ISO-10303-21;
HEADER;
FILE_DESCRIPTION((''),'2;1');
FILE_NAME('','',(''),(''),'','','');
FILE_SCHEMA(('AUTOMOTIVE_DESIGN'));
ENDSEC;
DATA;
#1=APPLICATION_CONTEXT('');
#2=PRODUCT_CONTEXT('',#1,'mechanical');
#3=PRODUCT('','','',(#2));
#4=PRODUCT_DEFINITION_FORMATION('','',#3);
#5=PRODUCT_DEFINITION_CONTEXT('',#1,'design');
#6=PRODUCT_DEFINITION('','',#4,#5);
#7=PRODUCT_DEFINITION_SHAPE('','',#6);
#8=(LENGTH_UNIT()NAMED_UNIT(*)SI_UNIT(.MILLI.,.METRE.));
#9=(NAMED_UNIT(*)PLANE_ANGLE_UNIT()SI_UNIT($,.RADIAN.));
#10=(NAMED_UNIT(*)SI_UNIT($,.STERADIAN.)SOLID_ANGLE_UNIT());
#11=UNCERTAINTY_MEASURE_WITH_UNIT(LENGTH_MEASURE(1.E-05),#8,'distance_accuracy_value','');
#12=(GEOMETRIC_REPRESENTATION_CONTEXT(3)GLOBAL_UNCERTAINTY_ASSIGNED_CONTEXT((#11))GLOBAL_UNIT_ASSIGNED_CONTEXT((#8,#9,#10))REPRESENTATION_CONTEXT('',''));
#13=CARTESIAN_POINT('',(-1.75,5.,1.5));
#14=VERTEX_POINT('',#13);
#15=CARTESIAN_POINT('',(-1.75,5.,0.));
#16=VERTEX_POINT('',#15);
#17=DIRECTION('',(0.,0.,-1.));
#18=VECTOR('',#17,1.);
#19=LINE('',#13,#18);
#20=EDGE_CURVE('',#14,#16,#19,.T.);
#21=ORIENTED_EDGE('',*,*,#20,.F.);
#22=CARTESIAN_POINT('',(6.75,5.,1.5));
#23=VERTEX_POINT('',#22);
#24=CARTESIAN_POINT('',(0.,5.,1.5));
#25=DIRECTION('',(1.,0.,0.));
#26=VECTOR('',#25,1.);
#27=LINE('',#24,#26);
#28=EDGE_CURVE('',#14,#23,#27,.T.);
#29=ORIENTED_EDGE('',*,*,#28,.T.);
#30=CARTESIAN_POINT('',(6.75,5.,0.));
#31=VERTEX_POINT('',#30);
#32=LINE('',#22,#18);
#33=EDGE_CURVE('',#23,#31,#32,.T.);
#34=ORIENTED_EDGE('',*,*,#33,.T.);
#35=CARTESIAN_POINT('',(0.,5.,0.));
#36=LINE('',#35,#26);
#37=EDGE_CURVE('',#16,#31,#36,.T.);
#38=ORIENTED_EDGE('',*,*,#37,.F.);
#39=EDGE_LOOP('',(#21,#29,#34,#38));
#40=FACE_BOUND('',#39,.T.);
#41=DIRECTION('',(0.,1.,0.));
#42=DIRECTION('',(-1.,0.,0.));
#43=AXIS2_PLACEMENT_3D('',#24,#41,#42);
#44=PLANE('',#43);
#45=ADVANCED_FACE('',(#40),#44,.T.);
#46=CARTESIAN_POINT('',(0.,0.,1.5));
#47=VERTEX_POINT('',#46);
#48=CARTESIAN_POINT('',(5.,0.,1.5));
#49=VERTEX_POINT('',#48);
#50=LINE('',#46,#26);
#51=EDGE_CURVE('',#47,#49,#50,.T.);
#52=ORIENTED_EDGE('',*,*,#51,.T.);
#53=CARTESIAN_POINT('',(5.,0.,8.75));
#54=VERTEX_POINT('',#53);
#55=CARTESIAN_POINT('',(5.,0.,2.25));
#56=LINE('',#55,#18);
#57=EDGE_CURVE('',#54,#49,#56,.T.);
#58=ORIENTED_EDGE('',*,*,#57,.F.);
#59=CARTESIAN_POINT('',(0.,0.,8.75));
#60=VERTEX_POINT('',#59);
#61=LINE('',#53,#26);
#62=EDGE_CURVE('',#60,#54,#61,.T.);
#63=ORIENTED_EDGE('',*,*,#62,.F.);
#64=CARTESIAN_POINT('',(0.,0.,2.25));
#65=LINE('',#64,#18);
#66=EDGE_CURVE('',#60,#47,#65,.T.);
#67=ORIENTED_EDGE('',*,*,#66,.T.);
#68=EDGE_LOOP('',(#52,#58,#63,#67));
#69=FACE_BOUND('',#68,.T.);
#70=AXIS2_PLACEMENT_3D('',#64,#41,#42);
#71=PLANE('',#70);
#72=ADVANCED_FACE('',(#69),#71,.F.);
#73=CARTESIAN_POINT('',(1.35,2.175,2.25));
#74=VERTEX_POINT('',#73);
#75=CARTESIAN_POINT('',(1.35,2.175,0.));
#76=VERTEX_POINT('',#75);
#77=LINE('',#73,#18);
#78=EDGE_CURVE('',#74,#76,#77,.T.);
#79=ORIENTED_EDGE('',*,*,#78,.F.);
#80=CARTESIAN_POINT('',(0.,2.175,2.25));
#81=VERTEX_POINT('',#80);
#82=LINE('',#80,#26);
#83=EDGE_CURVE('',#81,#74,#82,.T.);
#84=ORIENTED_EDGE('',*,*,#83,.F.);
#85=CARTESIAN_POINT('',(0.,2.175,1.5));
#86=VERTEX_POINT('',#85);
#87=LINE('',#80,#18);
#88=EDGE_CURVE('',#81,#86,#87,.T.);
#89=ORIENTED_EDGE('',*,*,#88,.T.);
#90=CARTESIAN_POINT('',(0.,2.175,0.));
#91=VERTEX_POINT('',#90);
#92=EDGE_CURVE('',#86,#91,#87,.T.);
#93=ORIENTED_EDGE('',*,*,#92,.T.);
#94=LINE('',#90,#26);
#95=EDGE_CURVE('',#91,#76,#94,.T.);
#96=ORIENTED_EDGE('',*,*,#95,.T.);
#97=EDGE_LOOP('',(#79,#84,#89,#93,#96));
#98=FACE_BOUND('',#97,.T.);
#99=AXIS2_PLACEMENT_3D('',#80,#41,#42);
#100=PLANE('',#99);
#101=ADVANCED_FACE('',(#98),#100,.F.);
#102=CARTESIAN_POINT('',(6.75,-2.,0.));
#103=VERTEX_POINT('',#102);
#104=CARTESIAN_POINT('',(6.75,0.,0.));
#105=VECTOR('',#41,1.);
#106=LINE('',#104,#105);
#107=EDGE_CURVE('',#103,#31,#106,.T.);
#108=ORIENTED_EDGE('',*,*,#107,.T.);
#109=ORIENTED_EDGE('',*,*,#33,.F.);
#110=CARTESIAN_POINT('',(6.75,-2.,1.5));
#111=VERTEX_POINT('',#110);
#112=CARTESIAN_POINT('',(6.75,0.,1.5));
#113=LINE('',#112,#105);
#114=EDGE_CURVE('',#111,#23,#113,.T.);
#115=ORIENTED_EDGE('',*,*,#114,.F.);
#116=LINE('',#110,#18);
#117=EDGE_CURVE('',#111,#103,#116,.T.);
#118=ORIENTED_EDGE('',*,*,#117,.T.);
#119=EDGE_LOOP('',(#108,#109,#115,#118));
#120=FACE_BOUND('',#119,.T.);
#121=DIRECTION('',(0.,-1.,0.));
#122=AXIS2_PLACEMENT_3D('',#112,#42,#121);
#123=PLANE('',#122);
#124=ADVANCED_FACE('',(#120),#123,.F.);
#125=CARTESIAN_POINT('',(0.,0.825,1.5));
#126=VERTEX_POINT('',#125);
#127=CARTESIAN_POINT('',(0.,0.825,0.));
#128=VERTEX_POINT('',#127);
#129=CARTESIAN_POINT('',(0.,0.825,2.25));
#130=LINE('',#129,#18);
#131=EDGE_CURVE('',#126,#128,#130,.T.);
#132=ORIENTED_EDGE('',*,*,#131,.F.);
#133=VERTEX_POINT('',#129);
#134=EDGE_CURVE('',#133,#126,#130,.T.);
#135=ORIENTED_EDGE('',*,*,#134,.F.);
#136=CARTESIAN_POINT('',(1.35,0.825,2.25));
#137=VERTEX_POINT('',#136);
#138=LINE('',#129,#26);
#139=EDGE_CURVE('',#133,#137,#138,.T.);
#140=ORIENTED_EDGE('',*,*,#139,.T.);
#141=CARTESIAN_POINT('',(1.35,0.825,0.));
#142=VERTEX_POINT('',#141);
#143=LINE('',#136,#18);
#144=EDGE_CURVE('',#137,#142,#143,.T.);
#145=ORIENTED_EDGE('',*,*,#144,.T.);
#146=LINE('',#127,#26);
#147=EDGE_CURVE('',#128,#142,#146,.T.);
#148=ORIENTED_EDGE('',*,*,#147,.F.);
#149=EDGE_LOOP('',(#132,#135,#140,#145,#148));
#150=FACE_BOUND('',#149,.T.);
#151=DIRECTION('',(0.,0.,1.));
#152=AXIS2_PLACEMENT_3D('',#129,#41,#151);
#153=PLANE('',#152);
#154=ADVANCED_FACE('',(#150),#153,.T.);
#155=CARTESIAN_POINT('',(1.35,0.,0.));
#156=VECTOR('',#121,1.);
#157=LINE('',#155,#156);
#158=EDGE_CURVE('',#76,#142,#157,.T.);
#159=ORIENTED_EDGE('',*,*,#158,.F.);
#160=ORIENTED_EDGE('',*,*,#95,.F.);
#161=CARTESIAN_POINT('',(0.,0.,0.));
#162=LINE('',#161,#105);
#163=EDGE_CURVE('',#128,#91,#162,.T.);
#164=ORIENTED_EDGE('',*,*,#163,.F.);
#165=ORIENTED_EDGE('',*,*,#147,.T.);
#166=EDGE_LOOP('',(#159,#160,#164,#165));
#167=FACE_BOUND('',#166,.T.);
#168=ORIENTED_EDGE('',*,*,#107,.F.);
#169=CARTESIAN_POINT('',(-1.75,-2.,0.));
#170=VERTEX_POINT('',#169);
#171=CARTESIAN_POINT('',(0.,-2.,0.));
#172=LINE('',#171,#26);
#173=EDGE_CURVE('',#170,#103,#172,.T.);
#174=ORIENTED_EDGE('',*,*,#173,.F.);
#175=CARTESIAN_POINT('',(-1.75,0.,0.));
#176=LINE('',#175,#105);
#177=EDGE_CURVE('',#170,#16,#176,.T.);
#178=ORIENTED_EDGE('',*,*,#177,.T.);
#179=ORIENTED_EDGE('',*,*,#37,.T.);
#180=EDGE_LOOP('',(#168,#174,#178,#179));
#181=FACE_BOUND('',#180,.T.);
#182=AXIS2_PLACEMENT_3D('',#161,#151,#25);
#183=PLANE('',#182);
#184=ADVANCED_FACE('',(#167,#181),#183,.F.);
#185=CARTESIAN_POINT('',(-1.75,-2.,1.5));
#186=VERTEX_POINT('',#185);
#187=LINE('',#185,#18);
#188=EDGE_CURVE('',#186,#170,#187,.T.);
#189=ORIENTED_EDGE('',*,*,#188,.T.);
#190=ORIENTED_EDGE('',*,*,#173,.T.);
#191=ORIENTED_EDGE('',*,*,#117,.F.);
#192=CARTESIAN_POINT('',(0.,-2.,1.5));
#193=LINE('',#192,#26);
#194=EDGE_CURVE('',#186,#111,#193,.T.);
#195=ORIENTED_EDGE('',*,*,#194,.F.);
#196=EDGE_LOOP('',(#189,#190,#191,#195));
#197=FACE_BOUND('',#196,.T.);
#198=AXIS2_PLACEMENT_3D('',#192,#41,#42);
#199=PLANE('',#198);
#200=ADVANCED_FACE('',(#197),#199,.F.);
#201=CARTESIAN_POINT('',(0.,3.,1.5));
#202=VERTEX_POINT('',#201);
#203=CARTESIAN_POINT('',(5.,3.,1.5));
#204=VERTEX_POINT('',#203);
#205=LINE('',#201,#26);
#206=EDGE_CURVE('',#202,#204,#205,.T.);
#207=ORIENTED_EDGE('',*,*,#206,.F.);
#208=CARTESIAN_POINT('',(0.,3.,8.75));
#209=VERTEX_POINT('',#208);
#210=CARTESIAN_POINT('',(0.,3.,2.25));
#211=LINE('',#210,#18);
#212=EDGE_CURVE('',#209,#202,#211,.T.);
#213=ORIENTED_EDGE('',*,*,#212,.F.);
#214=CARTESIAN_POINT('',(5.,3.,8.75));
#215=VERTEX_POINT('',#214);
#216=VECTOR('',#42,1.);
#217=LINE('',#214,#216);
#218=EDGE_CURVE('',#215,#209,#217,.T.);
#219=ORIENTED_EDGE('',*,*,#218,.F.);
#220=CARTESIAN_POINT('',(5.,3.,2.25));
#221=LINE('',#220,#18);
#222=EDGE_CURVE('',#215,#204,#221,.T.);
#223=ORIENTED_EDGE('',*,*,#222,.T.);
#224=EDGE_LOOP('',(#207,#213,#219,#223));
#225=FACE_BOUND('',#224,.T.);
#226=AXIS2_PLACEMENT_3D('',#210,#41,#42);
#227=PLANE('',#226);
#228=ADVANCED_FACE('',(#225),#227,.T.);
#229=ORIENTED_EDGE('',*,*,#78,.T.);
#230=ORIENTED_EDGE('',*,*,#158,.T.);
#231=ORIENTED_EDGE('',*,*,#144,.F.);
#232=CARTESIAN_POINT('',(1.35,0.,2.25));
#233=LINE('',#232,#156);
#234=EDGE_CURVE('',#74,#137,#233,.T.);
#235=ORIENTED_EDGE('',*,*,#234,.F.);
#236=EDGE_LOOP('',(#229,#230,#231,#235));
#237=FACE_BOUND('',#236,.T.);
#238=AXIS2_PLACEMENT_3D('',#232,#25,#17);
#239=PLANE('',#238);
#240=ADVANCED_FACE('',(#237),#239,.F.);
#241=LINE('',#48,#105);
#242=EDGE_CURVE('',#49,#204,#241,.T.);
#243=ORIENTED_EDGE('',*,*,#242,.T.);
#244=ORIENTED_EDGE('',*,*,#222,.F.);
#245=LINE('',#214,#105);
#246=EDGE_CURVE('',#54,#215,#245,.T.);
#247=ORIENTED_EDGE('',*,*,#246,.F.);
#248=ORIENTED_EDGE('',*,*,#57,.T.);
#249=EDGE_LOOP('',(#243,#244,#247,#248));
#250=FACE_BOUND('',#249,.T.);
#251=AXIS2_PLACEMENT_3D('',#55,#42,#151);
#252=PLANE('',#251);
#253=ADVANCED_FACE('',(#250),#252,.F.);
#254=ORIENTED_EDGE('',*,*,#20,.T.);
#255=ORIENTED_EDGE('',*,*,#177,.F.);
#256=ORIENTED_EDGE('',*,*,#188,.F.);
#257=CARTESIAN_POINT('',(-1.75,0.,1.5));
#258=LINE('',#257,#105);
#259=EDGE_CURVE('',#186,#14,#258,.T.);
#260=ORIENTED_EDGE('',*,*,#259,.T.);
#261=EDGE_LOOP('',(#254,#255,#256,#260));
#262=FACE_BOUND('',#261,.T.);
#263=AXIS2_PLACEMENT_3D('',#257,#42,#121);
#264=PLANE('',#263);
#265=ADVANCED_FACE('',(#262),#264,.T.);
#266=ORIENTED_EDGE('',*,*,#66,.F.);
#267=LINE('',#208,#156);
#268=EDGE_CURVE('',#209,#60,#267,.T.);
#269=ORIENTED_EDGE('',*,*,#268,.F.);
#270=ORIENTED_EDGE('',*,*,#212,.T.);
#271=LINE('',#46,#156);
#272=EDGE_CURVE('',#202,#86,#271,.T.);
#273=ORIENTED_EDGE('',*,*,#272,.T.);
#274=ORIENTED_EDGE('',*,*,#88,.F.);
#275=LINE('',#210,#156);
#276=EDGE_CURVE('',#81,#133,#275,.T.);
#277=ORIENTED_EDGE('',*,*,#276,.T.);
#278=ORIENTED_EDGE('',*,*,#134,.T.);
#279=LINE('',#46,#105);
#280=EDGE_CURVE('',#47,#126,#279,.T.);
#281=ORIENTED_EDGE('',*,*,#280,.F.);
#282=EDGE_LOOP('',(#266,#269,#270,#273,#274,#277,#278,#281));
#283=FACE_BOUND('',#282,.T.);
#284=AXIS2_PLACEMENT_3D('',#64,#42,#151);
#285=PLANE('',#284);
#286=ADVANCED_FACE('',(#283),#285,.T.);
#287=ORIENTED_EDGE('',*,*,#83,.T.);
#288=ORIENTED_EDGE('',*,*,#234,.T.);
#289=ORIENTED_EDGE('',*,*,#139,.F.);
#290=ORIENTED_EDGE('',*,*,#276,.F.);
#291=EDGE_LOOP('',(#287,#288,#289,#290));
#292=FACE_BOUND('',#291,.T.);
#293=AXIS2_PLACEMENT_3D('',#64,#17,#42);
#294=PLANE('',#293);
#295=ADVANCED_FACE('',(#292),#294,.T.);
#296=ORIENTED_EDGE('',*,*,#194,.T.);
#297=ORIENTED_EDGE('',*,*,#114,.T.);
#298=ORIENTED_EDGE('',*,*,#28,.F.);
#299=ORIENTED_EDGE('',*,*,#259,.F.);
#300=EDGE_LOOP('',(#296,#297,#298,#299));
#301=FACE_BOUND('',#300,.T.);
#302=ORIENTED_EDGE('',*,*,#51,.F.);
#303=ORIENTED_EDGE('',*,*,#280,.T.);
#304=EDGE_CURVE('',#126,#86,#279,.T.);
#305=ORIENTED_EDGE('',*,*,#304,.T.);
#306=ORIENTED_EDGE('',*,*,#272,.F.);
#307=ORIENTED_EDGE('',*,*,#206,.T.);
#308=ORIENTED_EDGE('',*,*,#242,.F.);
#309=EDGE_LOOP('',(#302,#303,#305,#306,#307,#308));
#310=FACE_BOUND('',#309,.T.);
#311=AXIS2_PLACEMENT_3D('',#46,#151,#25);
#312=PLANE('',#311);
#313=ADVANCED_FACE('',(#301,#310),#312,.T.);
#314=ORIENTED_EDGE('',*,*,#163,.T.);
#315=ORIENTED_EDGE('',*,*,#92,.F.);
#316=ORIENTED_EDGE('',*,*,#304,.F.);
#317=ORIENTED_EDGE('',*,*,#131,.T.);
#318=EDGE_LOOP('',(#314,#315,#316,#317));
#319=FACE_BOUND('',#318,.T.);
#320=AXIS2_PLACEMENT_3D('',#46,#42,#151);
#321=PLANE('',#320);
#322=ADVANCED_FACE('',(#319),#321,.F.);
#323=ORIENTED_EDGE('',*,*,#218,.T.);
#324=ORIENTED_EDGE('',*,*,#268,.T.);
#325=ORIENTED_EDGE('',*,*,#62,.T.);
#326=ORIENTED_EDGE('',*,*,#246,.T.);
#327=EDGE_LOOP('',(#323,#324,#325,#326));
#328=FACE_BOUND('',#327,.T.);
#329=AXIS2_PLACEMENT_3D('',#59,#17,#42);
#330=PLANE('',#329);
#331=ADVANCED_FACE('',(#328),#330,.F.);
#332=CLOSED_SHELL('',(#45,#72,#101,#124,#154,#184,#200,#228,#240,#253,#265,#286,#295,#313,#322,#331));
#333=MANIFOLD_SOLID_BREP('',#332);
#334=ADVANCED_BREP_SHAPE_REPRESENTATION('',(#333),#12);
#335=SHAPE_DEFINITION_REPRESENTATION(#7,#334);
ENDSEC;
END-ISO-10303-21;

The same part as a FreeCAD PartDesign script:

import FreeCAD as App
import Part
import Sketcher
from FreeCAD import Vector
Q = App.Units.Quantity


def add_polygon(sketch, points):
    """Adds a closed chain of lines whose ends are joined by coincident constraints."""
    first, n = sketch.GeometryCount, len(points)
    for a, b in zip(points, points[1:] + points[:1]):
        sketch.addGeometry(Part.LineSegment(App.Vector(*a, 0), App.Vector(*b, 0)), False)
    for i in range(n):
        sketch.addConstraint(Sketcher.Constraint("Coincident", first + i, 2, first + (i + 1) % n, 1))

doc = App.newDocument("Part")
body = doc.addObject("PartDesign::Body", "Body")

# Sketch on XY plane
sketch1 = doc.addObject("Sketcher::SketchObject", "Sketch")
body.addObject(sketch1)
sketch1.AttachmentSupport = (doc.XY_Plane, [""])
sketch1.MapMode = "FlatFace"
add_polygon(sketch1, [(-1.8, 5), (-1.8, -2), (6.8, -2), (6.8, 5)])  # lines 0-3
add_polygon(sketch1, [(5, 0), (0, 0), (0, 3), (5, 3)])  # lines 4-7
sketch1.addConstraint([
    Sketcher.Constraint("Vertical", 0),
    Sketcher.Constraint("Horizontal", 1),
    Sketcher.Constraint("Vertical", 2),
    Sketcher.Constraint("Horizontal", 3),
    Sketcher.Constraint("Horizontal", 4),
    Sketcher.Constraint("Vertical", 5),
    Sketcher.Constraint("Horizontal", 6),
    Sketcher.Constraint("Vertical", 7),
    Sketcher.Constraint("Coincident", 4, 2, -1, 1),
    Sketcher.Constraint("DistanceX", 4, 2, 4, 1, Q("5 mm")),
    Sketcher.Constraint("DistanceY", 0, 2, 0, 1, Q("7 mm")),
    Sketcher.Constraint("DistanceY", 5, 1, 5, 2, Q("3 mm")),
    Sketcher.Constraint("DistanceX", 1, 1, 1, 2, Q("8.5 mm")),
    Sketcher.Constraint("DistanceY", 0, 2, -1, 1, Q("2 mm")),
    Sketcher.Constraint("DistanceX", 0, 2, -1, 1, Q("1.75 mm")),
])
pad1 = doc.addObject("PartDesign::Pad", "Pad")
body.addObject(pad1)
pad1.Profile = sketch1
pad1.Length = 1.5

# Sketch on XY plane
sketch2 = doc.addObject("Sketcher::SketchObject", "Sketch001")
body.addObject(sketch2)
sketch2.AttachmentSupport = (doc.XY_Plane, [""])
sketch2.MapMode = "FlatFace"
add_polygon(sketch2, [(0, 0.8), (0, 0), (5, 0), (5, 3), (0, 3), (0, 2.2), (1.4, 2.2), (1.4, 0.8)])  # lines 0-7
sketch2.addConstraint([
    Sketcher.Constraint("Vertical", 0),
    Sketcher.Constraint("Horizontal", 1),
    Sketcher.Constraint("Vertical", 2),
    Sketcher.Constraint("Horizontal", 3),
    Sketcher.Constraint("Vertical", 4),
    Sketcher.Constraint("Horizontal", 5),
    Sketcher.Constraint("Vertical", 6),
    Sketcher.Constraint("Horizontal", 7),
    Sketcher.Constraint("Coincident", 0, 2, -1, 1),
    Sketcher.Constraint("PointOnObject", 3, 2, -2),
    Sketcher.Constraint("Equal", 0, 4),
    Sketcher.Constraint("Equal", 7, 6),
    Sketcher.Constraint("DistanceX", 1, 1, 1, 2, Q("5 mm")),
    Sketcher.Constraint("DistanceY", 2, 1, 2, 2, Q("3 mm")),
    Sketcher.Constraint("DistanceX", 5, 1, 5, 2, Q("1.35 mm")),
])
pad2 = doc.addObject("PartDesign::Pad", "Pad001")
body.addObject(pad2)
pad2.Profile = sketch2
pad2.Length = 2.25

# Sketch on XY plane
sketch3 = doc.addObject("Sketcher::SketchObject", "Sketch002")
body.addObject(sketch3)
sketch3.AttachmentSupport = (doc.XY_Plane, [""])
sketch3.MapMode = "FlatFace"
sketch3.AttachmentOffset = App.Placement(Vector(0, 0, 2.25), App.Rotation())
add_polygon(sketch3, [(0, 3), (0, 0), (5, 0), (5, 3)])  # lines 0-3
sketch3.addConstraint([
    Sketcher.Constraint("Vertical", 0),
    Sketcher.Constraint("Horizontal", 1),
    Sketcher.Constraint("Vertical", 2),
    Sketcher.Constraint("Horizontal", 3),
    Sketcher.Constraint("Coincident", 0, 2, -1, 1),
    Sketcher.Constraint("DistanceX", 1, 1, 1, 2, Q("5 mm")),
    Sketcher.Constraint("DistanceY", 0, 2, 0, 1, Q("3 mm")),
])
pad3 = doc.addObject("PartDesign::Pad", "Pad002")
body.addObject(pad3)
pad3.Profile = sketch3
pad3.Length = 6.5

doc.recompute()
